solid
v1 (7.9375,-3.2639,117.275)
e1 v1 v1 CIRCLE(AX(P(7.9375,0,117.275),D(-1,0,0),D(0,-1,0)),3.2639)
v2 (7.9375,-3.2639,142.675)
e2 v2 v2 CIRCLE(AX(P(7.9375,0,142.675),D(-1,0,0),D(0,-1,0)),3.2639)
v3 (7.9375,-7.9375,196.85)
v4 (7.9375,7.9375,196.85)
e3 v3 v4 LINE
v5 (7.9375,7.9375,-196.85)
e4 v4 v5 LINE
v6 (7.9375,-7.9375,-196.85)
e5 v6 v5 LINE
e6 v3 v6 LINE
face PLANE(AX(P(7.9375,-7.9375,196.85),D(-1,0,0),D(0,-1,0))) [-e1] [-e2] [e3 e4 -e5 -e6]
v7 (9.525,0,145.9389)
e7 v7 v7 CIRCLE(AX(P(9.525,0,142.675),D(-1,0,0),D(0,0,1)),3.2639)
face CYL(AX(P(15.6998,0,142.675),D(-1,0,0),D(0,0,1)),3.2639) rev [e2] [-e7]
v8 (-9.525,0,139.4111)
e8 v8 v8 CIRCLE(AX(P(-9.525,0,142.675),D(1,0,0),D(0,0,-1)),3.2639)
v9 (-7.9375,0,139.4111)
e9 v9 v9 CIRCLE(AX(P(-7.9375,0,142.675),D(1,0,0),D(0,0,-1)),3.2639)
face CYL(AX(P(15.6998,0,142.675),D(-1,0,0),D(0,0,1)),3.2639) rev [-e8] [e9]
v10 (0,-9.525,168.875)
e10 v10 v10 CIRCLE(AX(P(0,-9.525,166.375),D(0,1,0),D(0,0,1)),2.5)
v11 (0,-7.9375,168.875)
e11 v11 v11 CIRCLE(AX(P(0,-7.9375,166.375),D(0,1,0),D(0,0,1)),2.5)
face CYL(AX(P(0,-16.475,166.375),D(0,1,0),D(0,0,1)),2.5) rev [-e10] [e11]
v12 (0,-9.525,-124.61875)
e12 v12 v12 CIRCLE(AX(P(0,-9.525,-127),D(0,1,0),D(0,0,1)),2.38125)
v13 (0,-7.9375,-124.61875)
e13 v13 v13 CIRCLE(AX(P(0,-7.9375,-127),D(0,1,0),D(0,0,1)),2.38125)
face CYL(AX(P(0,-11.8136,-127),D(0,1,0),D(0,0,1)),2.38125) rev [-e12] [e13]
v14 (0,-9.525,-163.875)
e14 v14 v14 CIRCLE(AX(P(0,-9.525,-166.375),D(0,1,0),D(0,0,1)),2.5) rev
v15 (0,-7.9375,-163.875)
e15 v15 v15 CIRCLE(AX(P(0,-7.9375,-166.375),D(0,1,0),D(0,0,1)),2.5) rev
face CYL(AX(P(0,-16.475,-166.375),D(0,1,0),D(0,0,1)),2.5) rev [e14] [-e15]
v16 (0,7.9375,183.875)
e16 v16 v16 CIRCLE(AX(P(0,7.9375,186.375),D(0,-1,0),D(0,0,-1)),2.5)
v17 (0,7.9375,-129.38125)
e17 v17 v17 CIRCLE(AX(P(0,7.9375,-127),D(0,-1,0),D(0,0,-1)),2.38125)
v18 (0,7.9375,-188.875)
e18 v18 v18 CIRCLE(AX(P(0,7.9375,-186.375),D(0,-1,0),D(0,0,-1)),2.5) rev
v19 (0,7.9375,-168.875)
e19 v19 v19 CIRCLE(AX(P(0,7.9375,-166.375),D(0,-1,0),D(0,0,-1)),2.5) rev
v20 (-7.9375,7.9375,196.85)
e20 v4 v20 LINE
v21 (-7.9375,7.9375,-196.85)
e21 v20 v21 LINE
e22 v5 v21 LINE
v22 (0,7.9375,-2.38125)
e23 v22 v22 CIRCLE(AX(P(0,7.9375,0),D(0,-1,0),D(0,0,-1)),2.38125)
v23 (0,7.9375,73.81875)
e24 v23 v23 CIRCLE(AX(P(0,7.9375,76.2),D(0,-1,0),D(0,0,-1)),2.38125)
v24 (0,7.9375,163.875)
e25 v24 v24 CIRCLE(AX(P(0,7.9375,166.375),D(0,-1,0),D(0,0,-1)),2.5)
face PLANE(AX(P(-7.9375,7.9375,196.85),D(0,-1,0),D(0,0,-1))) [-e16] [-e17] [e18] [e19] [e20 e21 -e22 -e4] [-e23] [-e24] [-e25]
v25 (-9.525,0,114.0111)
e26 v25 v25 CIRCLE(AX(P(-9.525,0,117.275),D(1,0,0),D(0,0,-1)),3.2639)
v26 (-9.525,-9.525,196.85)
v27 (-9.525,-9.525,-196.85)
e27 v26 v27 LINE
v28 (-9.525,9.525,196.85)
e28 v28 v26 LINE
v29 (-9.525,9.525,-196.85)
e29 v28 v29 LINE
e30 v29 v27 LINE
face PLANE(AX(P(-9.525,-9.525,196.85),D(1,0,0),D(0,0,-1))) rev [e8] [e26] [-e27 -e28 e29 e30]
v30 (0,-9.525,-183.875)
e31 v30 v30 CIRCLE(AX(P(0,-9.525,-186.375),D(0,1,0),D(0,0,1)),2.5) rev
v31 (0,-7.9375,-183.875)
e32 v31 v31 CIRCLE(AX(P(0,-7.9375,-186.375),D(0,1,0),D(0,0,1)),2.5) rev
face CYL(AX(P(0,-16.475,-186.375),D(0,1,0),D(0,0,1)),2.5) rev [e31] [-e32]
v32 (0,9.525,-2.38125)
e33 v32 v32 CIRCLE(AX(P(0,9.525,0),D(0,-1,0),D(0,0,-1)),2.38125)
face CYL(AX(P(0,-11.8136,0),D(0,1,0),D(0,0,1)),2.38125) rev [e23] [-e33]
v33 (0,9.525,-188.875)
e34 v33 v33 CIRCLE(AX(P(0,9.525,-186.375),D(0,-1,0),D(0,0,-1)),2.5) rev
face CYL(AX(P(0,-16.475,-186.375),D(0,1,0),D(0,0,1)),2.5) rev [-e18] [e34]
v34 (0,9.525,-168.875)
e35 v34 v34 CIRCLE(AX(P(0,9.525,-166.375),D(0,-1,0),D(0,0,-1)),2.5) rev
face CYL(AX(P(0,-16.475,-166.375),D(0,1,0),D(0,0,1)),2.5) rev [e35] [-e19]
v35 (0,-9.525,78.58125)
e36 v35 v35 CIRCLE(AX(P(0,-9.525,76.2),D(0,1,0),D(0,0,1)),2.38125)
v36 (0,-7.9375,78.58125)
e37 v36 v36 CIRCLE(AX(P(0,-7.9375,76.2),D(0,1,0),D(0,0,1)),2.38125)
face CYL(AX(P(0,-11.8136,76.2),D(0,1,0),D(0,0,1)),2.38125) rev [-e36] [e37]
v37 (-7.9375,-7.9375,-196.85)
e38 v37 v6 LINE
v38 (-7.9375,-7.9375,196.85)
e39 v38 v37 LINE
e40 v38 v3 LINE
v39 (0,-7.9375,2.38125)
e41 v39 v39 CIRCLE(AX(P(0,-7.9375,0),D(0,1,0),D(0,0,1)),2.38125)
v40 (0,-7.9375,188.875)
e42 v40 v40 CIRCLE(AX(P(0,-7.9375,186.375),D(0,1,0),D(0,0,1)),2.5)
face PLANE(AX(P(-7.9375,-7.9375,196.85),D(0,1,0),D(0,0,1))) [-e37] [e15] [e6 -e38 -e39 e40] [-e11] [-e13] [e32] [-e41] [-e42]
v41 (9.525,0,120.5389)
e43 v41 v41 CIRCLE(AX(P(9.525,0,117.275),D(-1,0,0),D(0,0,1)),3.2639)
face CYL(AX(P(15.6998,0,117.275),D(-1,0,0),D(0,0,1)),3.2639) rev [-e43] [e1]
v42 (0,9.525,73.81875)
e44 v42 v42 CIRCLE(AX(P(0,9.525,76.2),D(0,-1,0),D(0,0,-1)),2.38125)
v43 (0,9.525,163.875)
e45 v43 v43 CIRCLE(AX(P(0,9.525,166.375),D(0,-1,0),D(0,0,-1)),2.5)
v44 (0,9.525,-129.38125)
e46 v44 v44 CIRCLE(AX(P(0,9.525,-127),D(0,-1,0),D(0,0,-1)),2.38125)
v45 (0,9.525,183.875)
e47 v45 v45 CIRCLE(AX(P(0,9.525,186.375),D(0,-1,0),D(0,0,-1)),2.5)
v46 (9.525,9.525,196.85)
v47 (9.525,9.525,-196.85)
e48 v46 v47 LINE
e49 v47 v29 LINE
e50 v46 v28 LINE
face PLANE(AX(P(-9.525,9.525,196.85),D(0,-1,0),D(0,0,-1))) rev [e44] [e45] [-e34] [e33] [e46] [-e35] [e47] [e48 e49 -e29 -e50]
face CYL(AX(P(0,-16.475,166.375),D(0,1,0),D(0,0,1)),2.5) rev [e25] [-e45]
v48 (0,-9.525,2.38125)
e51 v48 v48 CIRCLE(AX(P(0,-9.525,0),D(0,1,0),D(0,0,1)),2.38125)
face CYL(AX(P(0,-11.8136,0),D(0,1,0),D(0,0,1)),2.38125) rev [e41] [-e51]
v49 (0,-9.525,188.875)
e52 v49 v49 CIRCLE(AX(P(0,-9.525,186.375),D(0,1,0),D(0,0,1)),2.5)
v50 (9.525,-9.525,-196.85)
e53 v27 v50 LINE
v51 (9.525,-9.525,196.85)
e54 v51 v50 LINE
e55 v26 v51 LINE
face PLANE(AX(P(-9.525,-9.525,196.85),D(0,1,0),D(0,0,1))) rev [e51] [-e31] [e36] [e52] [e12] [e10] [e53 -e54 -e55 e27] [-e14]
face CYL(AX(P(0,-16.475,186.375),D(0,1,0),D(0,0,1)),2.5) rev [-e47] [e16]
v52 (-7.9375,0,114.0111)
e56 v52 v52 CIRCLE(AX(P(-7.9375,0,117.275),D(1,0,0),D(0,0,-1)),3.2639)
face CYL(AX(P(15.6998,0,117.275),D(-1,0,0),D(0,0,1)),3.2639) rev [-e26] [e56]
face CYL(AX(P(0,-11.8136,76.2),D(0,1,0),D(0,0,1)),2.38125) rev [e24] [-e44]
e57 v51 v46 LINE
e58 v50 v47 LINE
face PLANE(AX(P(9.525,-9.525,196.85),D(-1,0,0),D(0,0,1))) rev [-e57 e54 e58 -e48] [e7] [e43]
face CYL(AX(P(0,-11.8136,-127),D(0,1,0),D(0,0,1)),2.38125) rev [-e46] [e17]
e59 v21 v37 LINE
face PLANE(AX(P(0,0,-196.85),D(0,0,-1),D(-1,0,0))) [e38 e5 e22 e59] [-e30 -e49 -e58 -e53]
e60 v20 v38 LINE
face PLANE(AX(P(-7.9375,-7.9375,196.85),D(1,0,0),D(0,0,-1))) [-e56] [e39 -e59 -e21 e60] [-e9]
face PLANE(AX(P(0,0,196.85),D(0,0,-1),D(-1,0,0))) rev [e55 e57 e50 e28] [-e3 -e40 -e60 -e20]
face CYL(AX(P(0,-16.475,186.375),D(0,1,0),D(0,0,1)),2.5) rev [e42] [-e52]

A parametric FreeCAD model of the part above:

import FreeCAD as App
import Part
import Sketcher
Q = App.Units.Quantity

doc = App.newDocument("Part")
body = doc.addObject("PartDesign::Body", "Body")

sketch1 = body.newObject("Sketcher::SketchObject", "Sketch")
sketch1.AttachmentSupport = (doc.getObject("XY_Plane"), [""])
sketch1.MapMode = "FlatFace"
sketch1.addGeometry([
    Part.LineSegment(App.Vector(-10, 10, 0), App.Vector(-10, -10, 0)),
    Part.LineSegment(App.Vector(-10, -10, 0), App.Vector(10, -10, 0)),
    Part.LineSegment(App.Vector(10, -10, 0), App.Vector(10, 10, 0)),
    Part.LineSegment(App.Vector(10, 10, 0), App.Vector(-10, 10, 0)),
    Part.LineSegment(App.Vector(8, -8, 0), App.Vector(-8, -8, 0)),
    Part.LineSegment(App.Vector(-8, -8, 0), App.Vector(-8, 8, 0)),
    Part.LineSegment(App.Vector(-8, 8, 0), App.Vector(8, 8, 0)),
    Part.LineSegment(App.Vector(8, 8, 0), App.Vector(8, -8, 0)),
], False)
sketch1.addConstraint([
    Sketcher.Constraint("Coincident", 0, 2, 1, 1),
    Sketcher.Constraint("Coincident", 1, 2, 2, 1),
    Sketcher.Constraint("Coincident", 2, 2, 3, 1),
    Sketcher.Constraint("Coincident", 3, 2, 0, 1),
    Sketcher.Constraint("Coincident", 4, 2, 5, 1),
    Sketcher.Constraint("Coincident", 5, 2, 6, 1),
    Sketcher.Constraint("Coincident", 6, 2, 7, 1),
    Sketcher.Constraint("Coincident", 7, 2, 4, 1),
    Sketcher.Constraint("Vertical", 0),
    Sketcher.Constraint("Horizontal", 1),
    Sketcher.Constraint("Vertical", 2),
    Sketcher.Constraint("Horizontal", 3),
    Sketcher.Constraint("Horizontal", 4),
    Sketcher.Constraint("Vertical", 5),
    Sketcher.Constraint("Horizontal", 6),
    Sketcher.Constraint("Vertical", 7),
    Sketcher.Constraint("Symmetric", 0, 2, 2, 2, -1, 1),
    Sketcher.Constraint("Symmetric", 4, 2, 6, 2, -1, 1),
    Sketcher.Constraint("Equal", 3, 0),
    Sketcher.Constraint("Equal", 6, 5),
    Sketcher.Constraint("DistanceX", 1, 1, 1, 2, Q("0.75 in")),
    Sketcher.Constraint("DistanceX", 4, 2, 4, 1, Q("0.625 in")),
])
pad1 = body.newObject("PartDesign::Pad", "Pad")
pad1.Profile = sketch1
pad1.Length = Q("15.5 in")
pad1.Midplane = True

sketch2 = body.newObject("Sketcher::SketchObject", "Sketch001")
sketch2.AttachmentSupport = (doc.getObject("XZ_Plane"), [""])
sketch2.MapMode = "FlatFace"
sketch2.AttachmentOffset = App.Placement(App.Vector(0, 0, -13.525), App.Rotation())
sketch2.addGeometry([
    Part.Circle(App.Vector(0, 186.4, 0), App.Vector(0, 0, 1), 2.5),
    Part.Circle(App.Vector(0, 166.4, 0), App.Vector(0, 0, 1), 2.5),
], False)
sketch2.addConstraint([
    Sketcher.Constraint("Equal", 0, 1),
    Sketcher.Constraint("PointOnObject", 0, 3, -2),
    Sketcher.Constraint("PointOnObject", 1, 3, -2),
    Sketcher.Constraint("Diameter", 0, Q("5 mm")),
    Sketcher.Constraint("DistanceY", -1, 1, 0, 3, Q("186.375 mm")),
    Sketcher.Constraint("DistanceY", -1, 1, 1, 3, Q("166.375 mm")),
])
pocket1 = body.newObject("PartDesign::Pocket", "Pocket")
pocket1.Profile = sketch2
pocket1.Length = 30
pocket1.Reversed = True
doc.recompute()

mirrored = body.newObject("PartDesign::Mirrored", "Mirrored")
mirrored.Originals = [pocket1]
mirrored.MirrorPlane = (doc.getObject("XY_Plane"), [""])
body.Tip = mirrored

sketch3 = body.newObject("Sketcher::SketchObject", "Sketch002")
sketch3.AttachmentSupport = (doc.getObject("YZ_Plane"), [""])
sketch3.MapMode = "FlatFace"
sketch3.AttachmentOffset = App.Placement(App.Vector(0, 0, -0.563 * 25.4), App.Rotation())
sketch3.addGeometry([
    Part.Circle(App.Vector(0, 142.7, 0), App.Vector(0, 0, 1), 3.3),
    Part.Circle(App.Vector(0, 117.3, 0), App.Vector(0, 0, 1), 3.3),
], False)
sketch3.addConstraint([
    Sketcher.Constraint("Equal", 0, 1),
    Sketcher.Constraint("PointOnObject", 0, 3, -2),
    Sketcher.Constraint("PointOnObject", 1, 3, -2),
    Sketcher.Constraint("Diameter", 0, Q("0.257 in")),
    Sketcher.Constraint("DistanceY", 1, 3, 0, 3, Q("1 in")),
    Sketcher.Constraint("DistanceY", -1, 1, 0, 3, Q("142.675 mm")),
])
pocket2 = body.newObject("PartDesign::Pocket", "Pocket001")
pocket2.Profile = sketch3
pocket2.Length = 30
pocket2.Reversed = True

sketch4 = body.newObject("Sketcher::SketchObject", "Sketch003")
sketch4.AttachmentSupport = (doc.getObject("XZ_Plane"), [""])
sketch4.MapMode = "FlatFace"
sketch4.AttachmentOffset = App.Placement(App.Vector(0, 0, -0.716 * 25.4), App.Rotation())
sketch4.addGeometry([
    Part.Circle(App.Vector(0, 0, 0), App.Vector(0, 0, 1), 2.4),
    Part.Circle(App.Vector(0, -127, 0), App.Vector(0, 0, 1), 2.4),
    Part.Circle(App.Vector(0, 76.2, 0), App.Vector(0, 0, 1), 2.4),
], False)
sketch4.addConstraint([
    Sketcher.Constraint("Coincident", 0, 3, -1, 1),
    Sketcher.Constraint("Equal", 0, 1),
    Sketcher.Constraint("Equal", 1, 2),
    Sketcher.Constraint("PointOnObject", 1, 3, -2),
    Sketcher.Constraint("PointOnObject", 2, 3, -2),
    Sketcher.Constraint("Diameter", 0, Q("0.1875 in")),
    Sketcher.Constraint("DistanceY", 1, 3, -1, 1, Q("5 in")),
    Sketcher.Constraint("DistanceY", -1, 1, 2, 3, Q("3 in")),
])
pocket3 = body.newObject("PartDesign::Pocket", "Pocket002")
pocket3.Profile = sketch4
pocket3.Length = 30
pocket3.Reversed = True

doc.recompute()
